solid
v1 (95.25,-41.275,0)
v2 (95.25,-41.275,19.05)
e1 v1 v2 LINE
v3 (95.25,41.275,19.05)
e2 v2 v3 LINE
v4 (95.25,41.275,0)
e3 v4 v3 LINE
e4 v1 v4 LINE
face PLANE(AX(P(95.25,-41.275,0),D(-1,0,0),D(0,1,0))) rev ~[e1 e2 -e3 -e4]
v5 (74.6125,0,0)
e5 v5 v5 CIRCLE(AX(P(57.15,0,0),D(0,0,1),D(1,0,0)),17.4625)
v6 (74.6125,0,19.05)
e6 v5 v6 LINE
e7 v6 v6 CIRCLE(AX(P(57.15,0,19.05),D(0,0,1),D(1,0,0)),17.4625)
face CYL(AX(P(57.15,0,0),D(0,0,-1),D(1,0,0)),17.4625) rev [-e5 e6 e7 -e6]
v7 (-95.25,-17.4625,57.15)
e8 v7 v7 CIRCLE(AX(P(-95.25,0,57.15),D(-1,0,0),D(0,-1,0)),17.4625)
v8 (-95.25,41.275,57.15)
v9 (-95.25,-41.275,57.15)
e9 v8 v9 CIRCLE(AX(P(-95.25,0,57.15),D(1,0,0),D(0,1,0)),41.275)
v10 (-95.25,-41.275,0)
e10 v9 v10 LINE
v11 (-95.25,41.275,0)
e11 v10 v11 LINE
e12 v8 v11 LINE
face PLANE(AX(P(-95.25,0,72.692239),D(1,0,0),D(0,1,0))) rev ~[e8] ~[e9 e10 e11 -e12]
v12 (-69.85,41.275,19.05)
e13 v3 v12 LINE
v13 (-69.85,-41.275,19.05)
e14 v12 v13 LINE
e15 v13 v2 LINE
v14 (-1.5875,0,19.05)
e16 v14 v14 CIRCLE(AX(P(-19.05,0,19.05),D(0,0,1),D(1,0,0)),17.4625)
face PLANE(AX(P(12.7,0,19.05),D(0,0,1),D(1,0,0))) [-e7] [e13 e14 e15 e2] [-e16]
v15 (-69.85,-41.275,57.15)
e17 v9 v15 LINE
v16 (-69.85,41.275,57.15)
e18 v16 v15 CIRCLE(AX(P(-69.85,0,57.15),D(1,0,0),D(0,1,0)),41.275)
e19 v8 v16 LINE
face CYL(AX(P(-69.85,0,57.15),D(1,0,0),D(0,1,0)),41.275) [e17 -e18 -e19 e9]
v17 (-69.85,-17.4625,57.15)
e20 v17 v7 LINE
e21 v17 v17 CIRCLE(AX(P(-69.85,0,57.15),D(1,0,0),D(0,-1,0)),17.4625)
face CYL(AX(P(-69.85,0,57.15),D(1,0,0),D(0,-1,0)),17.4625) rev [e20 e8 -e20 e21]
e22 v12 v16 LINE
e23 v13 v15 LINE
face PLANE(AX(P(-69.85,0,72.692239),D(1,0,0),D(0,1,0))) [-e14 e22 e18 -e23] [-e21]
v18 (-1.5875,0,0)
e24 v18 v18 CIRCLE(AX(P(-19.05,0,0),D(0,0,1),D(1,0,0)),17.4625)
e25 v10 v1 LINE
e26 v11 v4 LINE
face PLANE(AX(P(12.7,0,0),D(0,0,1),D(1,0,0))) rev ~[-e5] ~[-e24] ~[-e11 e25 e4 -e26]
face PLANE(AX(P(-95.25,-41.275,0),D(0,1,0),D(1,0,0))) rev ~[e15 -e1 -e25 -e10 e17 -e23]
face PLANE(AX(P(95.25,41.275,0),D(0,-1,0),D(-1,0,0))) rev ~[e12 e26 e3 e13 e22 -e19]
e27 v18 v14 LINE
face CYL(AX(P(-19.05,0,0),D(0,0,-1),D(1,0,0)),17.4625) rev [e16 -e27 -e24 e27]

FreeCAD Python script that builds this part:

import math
import FreeCAD as App
import Part
import Sketcher

V = App.Vector
Q = App.Units.Quantity

doc = App.newDocument("Part")
body = doc.addObject("PartDesign::Body", "Body")

sketch1 = body.newObject("Sketcher::SketchObject", "Sketch")
sketch1.AttachmentSupport = (doc.getObject("XY_Plane"), [""])
sketch1.MapMode = "FlatFace"
sketch1.addGeometry([
    Part.LineSegment(V(95, -41, 0), V(95, 41, 0)),
    Part.LineSegment(V(95, 41, 0), V(-95, 41, 0)),
    Part.LineSegment(V(-95, 41, 0), V(-95, -41, 0)),
    Part.LineSegment(V(-95, -41, 0), V(95, -41, 0)),
    Part.Circle(V(-19, 0, 0), V(0, 0, 1), 17),
    Part.Circle(V(57, 0, 0), V(0, 0, 1), 17),
], False)
sketch1.addConstraint([
    Sketcher.Constraint("Coincident", 0, 2, 1, 1),
    Sketcher.Constraint("Coincident", 1, 2, 2, 1),
    Sketcher.Constraint("Coincident", 2, 2, 3, 1),
    Sketcher.Constraint("Coincident", 3, 2, 0, 1),
    Sketcher.Constraint("Vertical", 0),
    Sketcher.Constraint("Horizontal", 1),
    Sketcher.Constraint("Vertical", 2),
    Sketcher.Constraint("Horizontal", 3),
    Sketcher.Constraint("Equal", 4, 5),
    Sketcher.Constraint("Symmetric", 0, 2, 2, 2, -1, 1),
    Sketcher.Constraint("PointOnObject", 4, 3, -1),
    Sketcher.Constraint("PointOnObject", 5, 3, -1),
    Sketcher.Constraint("Diameter", 4, Q("1.375 in")),
    Sketcher.Constraint("DistanceX", 1, 2, 1, 1, Q("7.5 in")),
    Sketcher.Constraint("DistanceX", 4, 3, 5, 3, Q("3 in")),
    Sketcher.Constraint("DistanceX", 1, 2, 4, 3, Q("3 in")),
    Sketcher.Constraint("DistanceY", 0, 1, 0, 2, Q("3.25 in")),
])
pad1 = body.newObject("PartDesign::Pad", "Pad")
pad1.Profile = sketch1
pad1.Length = Q("0.75 in")

sketch2 = body.newObject("Sketcher::SketchObject", "Sketch001")
sketch2.AttachmentSupport = (doc.getObject("XY_Plane"), [""])
sketch2.MapMode = "FlatFace"
sketch2.addGeometry([
    Part.LineSegment(V(-95, 41, 0), V(-95, -41, 0)),
    Part.LineSegment(V(-95, -41, 0), V(-70, -41, 0)),
    Part.LineSegment(V(-70, -41, 0), V(-70, 41, 0)),
    Part.LineSegment(V(-70, 41, 0), V(-95, 41, 0)),
], False)
sketch2.addConstraint([
    Sketcher.Constraint("Coincident", 0, 2, 1, 1),
    Sketcher.Constraint("Coincident", 1, 2, 2, 1),
    Sketcher.Constraint("Coincident", 2, 2, 3, 1),
    Sketcher.Constraint("Coincident", 3, 2, 0, 1),
    Sketcher.Constraint("Vertical", 0),
    Sketcher.Constraint("Horizontal", 1),
    Sketcher.Constraint("Vertical", 2),
    Sketcher.Constraint("Horizontal", 3),
    Sketcher.Constraint("DistanceX", 1, 1, 1, 2, Q("1 in")),
    Sketcher.Constraint("DistanceY", 0, 2, 0, 1, Q("3.25 in")),
    Sketcher.Constraint("DistanceX", 0, 2, -1, 1, Q("3.75 in")),
    Sketcher.Constraint("DistanceY", 0, 2, -1, 1, Q("1.625 in")),
])
pad2 = body.newObject("PartDesign::Pad", "Pad001")
pad2.Profile = sketch2
pad2.Length = Q("2.25 in")

sketch3 = body.newObject("Sketcher::SketchObject", "Sketch002")
sketch3.AttachmentSupport = (doc.getObject("YZ_Plane"), [""])
sketch3.MapMode = "FlatFace"
sketch3.AttachmentOffset = App.Placement(V(0, 0, -2.75 * 25.4), App.Rotation())
sketch3.addGeometry([
    Part.ArcOfCircle(Part.Circle(V(0, 57, 0), V(0, 0, 1), 17), math.radians(0), math.radians(180)),
    Part.LineSegment(V(17, 57, 0), V(41, 57, 0)),
    Part.ArcOfCircle(Part.Circle(V(0, 57, 0), V(0, 0, 1), 41), math.radians(0), math.radians(180)),
    Part.LineSegment(V(-41, 57, 0), V(-17, 57, 0)),
], False)
sketch3.addConstraint([
    Sketcher.Constraint("Coincident", 0, 1, 1, 1),
    Sketcher.Constraint("Coincident", 1, 2, 2, 1),
    Sketcher.Constraint("Coincident", 2, 2, 3, 1),
    Sketcher.Constraint("Coincident", 3, 2, 0, 2),
    Sketcher.Constraint("Horizontal", 1),
    Sketcher.Constraint("Horizontal", 3),
    Sketcher.Constraint("Coincident", 2, 3, 0, 3),
    Sketcher.Constraint("Symmetric", 1, 2, 2, 2, -2),
    Sketcher.Constraint("Horizontal", 2, 3, 0, 1),
    Sketcher.Constraint("Radius", 0, Q("0.6875 in")),
    Sketcher.Constraint("Radius", 2, Q("1.625 in")),
    Sketcher.Constraint("DistanceY", -1, 1, 0, 3, Q("2.25 in")),
])
pad3 = body.newObject("PartDesign::Pad", "Pad002")
pad3.Profile = sketch3
pad3.Length = Q("1 in")
pad3.Reversed = True

sketch4 = body.newObject("Sketcher::SketchObject", "Sketch003")
sketch4.AttachmentSupport = (doc.getObject("YZ_Plane"), [""])
sketch4.MapMode = "FlatFace"
sketch4.AttachmentOffset = App.Placement(V(0, 0, -2.75 * 25.4), App.Rotation())
sketch4.addGeometry(Part.Circle(V(0, 57, 0), V(0, 0, 1), 17), False)
sketch4.addConstraint([
    Sketcher.Constraint("PointOnObject", 0, 3, -2),
    Sketcher.Constraint("Diameter", 0, Q("1.375 in")),
    Sketcher.Constraint("DistanceY", -1, 1, 0, 3, Q("2.25 in")),
])
pocket1 = body.newObject("PartDesign::Pocket", "Pocket")
pocket1.Profile = sketch4
pocket1.Length = Q("1 in")

doc.recompute()
